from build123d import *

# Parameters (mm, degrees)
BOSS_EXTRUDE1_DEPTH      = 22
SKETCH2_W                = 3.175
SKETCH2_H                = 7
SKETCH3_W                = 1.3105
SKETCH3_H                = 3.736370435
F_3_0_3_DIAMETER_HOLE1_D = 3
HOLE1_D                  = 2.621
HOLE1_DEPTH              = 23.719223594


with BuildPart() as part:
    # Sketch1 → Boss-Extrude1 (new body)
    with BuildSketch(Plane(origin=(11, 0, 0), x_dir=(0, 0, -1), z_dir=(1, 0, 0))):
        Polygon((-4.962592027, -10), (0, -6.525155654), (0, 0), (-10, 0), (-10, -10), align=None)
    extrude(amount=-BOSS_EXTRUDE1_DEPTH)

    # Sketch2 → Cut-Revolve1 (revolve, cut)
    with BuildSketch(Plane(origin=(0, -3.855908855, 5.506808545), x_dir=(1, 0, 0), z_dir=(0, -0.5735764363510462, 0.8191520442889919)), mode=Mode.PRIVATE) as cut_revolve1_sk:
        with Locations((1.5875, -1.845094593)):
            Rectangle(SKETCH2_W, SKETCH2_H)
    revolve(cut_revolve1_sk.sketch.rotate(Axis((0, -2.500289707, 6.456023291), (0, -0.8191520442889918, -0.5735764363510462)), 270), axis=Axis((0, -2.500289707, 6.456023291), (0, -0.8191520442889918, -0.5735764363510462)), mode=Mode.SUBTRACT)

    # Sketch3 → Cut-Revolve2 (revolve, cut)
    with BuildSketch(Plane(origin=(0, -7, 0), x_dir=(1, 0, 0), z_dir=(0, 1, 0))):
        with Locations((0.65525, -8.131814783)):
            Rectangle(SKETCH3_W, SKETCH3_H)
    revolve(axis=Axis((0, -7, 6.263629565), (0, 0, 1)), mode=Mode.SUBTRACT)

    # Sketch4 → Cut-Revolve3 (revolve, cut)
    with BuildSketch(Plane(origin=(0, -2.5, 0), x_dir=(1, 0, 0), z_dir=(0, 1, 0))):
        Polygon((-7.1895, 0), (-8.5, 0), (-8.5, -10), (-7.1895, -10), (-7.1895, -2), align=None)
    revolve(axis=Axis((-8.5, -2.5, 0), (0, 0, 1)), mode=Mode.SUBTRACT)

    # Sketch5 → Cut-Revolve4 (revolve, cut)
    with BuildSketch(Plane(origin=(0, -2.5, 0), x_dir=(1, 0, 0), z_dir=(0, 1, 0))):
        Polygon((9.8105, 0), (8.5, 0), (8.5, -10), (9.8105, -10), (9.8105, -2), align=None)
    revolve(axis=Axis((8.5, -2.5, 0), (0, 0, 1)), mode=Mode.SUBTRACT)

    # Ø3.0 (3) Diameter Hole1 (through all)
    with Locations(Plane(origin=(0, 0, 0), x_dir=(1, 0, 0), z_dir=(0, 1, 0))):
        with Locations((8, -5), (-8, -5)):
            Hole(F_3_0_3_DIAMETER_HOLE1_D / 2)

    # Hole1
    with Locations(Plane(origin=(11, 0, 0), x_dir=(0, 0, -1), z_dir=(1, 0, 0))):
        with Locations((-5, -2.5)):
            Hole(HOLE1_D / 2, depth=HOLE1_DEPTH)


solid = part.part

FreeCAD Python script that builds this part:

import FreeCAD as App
import Part
import Sketcher
Q = App.Units.Quantity


def add_polygon(sketch, points):
    """Adds a closed chain of lines whose ends are joined by coincident constraints."""
    first, n = sketch.GeometryCount, len(points)
    for a, b in zip(points, points[1:] + points[:1]):
        sketch.addGeometry(Part.LineSegment(App.Vector(*a, 0), App.Vector(*b, 0)), False)
    for i in range(n):
        sketch.addConstraint(Sketcher.Constraint("Coincident", first + i, 2, first + (i + 1) % n, 1))

doc = App.newDocument("Part")
body = doc.addObject("PartDesign::Body", "Body")

# Sketch on YZ plane
sketch1 = body.newObject("Sketcher::SketchObject", "Sketch")
sketch1.AttachmentSupport = (doc.getObject("YZ_Plane"), [""])
sketch1.MapMode = "FlatFace"
sketch1.AttachmentOffset = App.Placement(App.Vector(0, 0, 11), App.Rotation())
add_polygon(sketch1, [(-10, 5), (-7, 0), (0, 0), (0, 10), (-10, 10)])  # lines 0-4
sketch1.addConstraint([
    Sketcher.Constraint("Horizontal", 1),
    Sketcher.Constraint("Vertical", 2),
    Sketcher.Constraint("Horizontal", 3),
    Sketcher.Constraint("Vertical", 4),
    Sketcher.Constraint("Coincident", 1, 2, -1, 1),
    Sketcher.Constraint("Equal", 3, 2),
    Sketcher.Constraint("DistanceX", 3, 2, 3, 1, Q("10 mm")),
    Sketcher.Constraint("Angle", 0, Q("-55 deg")),
    Sketcher.Constraint("DistanceX", 1, 1, 1, 2, Q("6.525156 mm")),
])
pad1 = body.newObject("PartDesign::Pad", "Pad")
pad1.Profile = sketch1
pad1.Length = 22
pad1.Reversed = True

# Sketch on an angled plane
sketch2 = body.newObject("Sketcher::SketchObject", "Sketch001")
sketch2.Placement = App.Placement(App.Vector(0, -3.855909, 5.506809), App.Rotation(App.Vector(1, 0, 0), App.Vector(0, 0.819152044, 0.573576436), App.Vector(0, -0.573576436, 0.819152044), "ZXY"))
add_polygon(sketch2, [(0, 1.7), (0, -5.3), (3.2, -5.3), (3.2, 1.7)])  # lines 0-3
sketch2.addConstraint([
    Sketcher.Constraint("Vertical", 0),
    Sketcher.Constraint("Horizontal", 1),
    Sketcher.Constraint("Vertical", 2),
    Sketcher.Constraint("Horizontal", 3),
    Sketcher.Constraint("PointOnObject", 0, 2, -2),
    Sketcher.Constraint("DistanceY", 0, 2, 0, 1, Q("7 mm")),
    Sketcher.Constraint("DistanceX", 1, 1, 1, 2, Q("3.175 mm")),
    Sketcher.Constraint("DistanceY", 0, 2, -1, 1, Q("5.345095 mm")),
])
groove = body.newObject("PartDesign::Groove", "Groove")
groove.Profile = sketch2
groove.ReferenceAxis = (sketch2, ["V_Axis"])
groove.Angle = 360

# Sketch on XZ plane
sketch3 = body.newObject("Sketcher::SketchObject", "Sketch002")
sketch3.AttachmentSupport = (doc.getObject("XZ_Plane"), [""])
sketch3.MapMode = "FlatFace"
sketch3.AttachmentOffset = App.Placement(App.Vector(0, 0, 7), App.Rotation())
add_polygon(sketch3, [(0, 6.3), (0, 10), (1.3, 10), (1.3, 6.3)])  # lines 0-3
sketch3.addConstraint([
    Sketcher.Constraint("Vertical", 0),
    Sketcher.Constraint("Horizontal", 1),
    Sketcher.Constraint("Vertical", 2),
    Sketcher.Constraint("Horizontal", 3),
    Sketcher.Constraint("PointOnObject", 0, 2, -2),
    Sketcher.Constraint("DistanceY", -1, 1, 0, 2, Q("10 mm")),
    Sketcher.Constraint("DistanceX", 1, 1, 1, 2, Q("1.3105 mm")),
    Sketcher.Constraint("DistanceY", 0, 1, 0, 2, Q("3.73637 mm")),
])
groove2 = body.newObject("PartDesign::Groove", "Groove001")
groove2.Profile = sketch3
groove2.ReferenceAxis = (sketch3, ["V_Axis"])
groove2.Angle = 360

# Sketch on XZ plane
sketch4 = body.newObject("Sketcher::SketchObject", "Sketch003")
sketch4.AttachmentSupport = (doc.getObject("XZ_Plane"), [""])
sketch4.MapMode = "FlatFace"
sketch4.AttachmentOffset = App.Placement(App.Vector(0, 0, 2.5), App.Rotation())
add_polygon(sketch4, [(-7.2, 0), (-8.5, 0), (-8.5, 10), (-7.2, 10)])  # lines 0-3
sketch4.addGeometry(Part.LineSegment(App.Vector(-8.5, 0, 0), App.Vector(-8.5, 10, 0)), True)  # axis
sketch4.addConstraint([
    Sketcher.Constraint("Horizontal", 0),
    Sketcher.Constraint("Vertical", 1),
    Sketcher.Constraint("Horizontal", 2),
    Sketcher.Constraint("Vertical", 3),
    Sketcher.Constraint("Vertical", 4),
    Sketcher.Constraint("Coincident", 4, 1, 0, 2),
    Sketcher.Constraint("PointOnObject", 0, 2, -1),
    Sketcher.Constraint("Horizontal", 2, 2, 4, 2),
    Sketcher.Constraint("DistanceY", 1, 1, 1, 2, Q("10 mm")),
    Sketcher.Constraint("DistanceX", 0, 2, -1, 1, Q("8.5 mm")),
    Sketcher.Constraint("DistanceX", 0, 2, 0, 1, Q("1.3105 mm")),
])
groove3 = body.newObject("PartDesign::Groove", "Groove002")
groove3.Profile = sketch4
groove3.ReferenceAxis = (sketch4, ["Axis0"])
groove3.Angle = 360

# Sketch on XZ plane
sketch5 = body.newObject("Sketcher::SketchObject", "Sketch004")
sketch5.AttachmentSupport = (doc.getObject("XZ_Plane"), [""])
sketch5.MapMode = "FlatFace"
sketch5.AttachmentOffset = App.Placement(App.Vector(0, 0, 2.5), App.Rotation())
add_polygon(sketch5, [(9.8, 0), (8.5, 0), (8.5, 10), (9.8, 10)])  # lines 0-3
sketch5.addGeometry(Part.LineSegment(App.Vector(8.5, 0, 0), App.Vector(8.5, 10, 0)), True)  # axis
sketch5.addConstraint([
    Sketcher.Constraint("Horizontal", 0),
    Sketcher.Constraint("Vertical", 1),
    Sketcher.Constraint("Horizontal", 2),
    Sketcher.Constraint("Vertical", 3),
    Sketcher.Constraint("Vertical", 4),
    Sketcher.Constraint("Coincident", 4, 1, 0, 2),
    Sketcher.Constraint("PointOnObject", 0, 2, -1),
    Sketcher.Constraint("Horizontal", 2, 2, 4, 2),
    Sketcher.Constraint("DistanceY", 1, 1, 1, 2, Q("10 mm")),
    Sketcher.Constraint("DistanceX", -1, 1, 0, 2, Q("8.5 mm")),
    Sketcher.Constraint("DistanceX", 0, 2, 0, 1, Q("1.3105 mm")),
])
groove4 = body.newObject("PartDesign::Groove", "Groove003")
groove4.Profile = sketch5
groove4.ReferenceAxis = (sketch5, ["Axis0"])
groove4.Angle = 360

# Sketch on XZ plane
sketch6 = body.newObject("Sketcher::SketchObject", "Sketch005")
sketch6.AttachmentSupport = (doc.getObject("XZ_Plane"), [""])
sketch6.MapMode = "FlatFace"
sketch6.addGeometry([
    Part.Circle(App.Vector(8, 5, 0), App.Vector(0, 0, 1), 1.5),
    Part.Circle(App.Vector(-8, 5, 0), App.Vector(0, 0, 1), 1.5),
], False)
sketch6.addConstraint([
    Sketcher.Constraint("Equal", 0, 1),
    Sketcher.Constraint("Symmetric", 0, 3, 1, 3, -2),
    Sketcher.Constraint("Diameter", 0, Q("3 mm")),
    Sketcher.Constraint("DistanceX", -1, 1, 0, 3, Q("8 mm")),
    Sketcher.Constraint("DistanceY", -1, 1, 0, 3, Q("5 mm")),
])
doc.recompute()
hole = body.newObject("PartDesign::Hole", "Hole")
hole.Profile = sketch6
hole.ThreadType = "None"
hole.Diameter = 3
hole.DepthType = "ThroughAll"
hole.Reversed = True

# Sketch on YZ plane
sketch7 = body.newObject("Sketcher::SketchObject", "Sketch006")
sketch7.AttachmentSupport = (doc.getObject("YZ_Plane"), [""])
sketch7.MapMode = "FlatFace"
sketch7.AttachmentOffset = App.Placement(App.Vector(0, 0, 11), App.Rotation())
sketch7.addGeometry(Part.Circle(App.Vector(-2.5, 5, 0), App.Vector(0, 0, 1), 1.3), False)
sketch7.addConstraint([
    Sketcher.Constraint("Diameter", 0, Q("2.621 mm")),
    Sketcher.Constraint("DistanceY", -1, 1, 0, 3, Q("5 mm")),
    Sketcher.Constraint("DistanceX", 0, 3, -1, 1, Q("2.5 mm")),
])
doc.recompute()
hole2 = body.newObject("PartDesign::Hole", "Hole001")
hole2.Profile = sketch7
hole2.ThreadType = "None"
hole2.Diameter = 2.621
hole2.DepthType = "Dimension"
hole2.Depth = 23.719224
hole2.DrillPoint = "Flat"

doc.recompute()
